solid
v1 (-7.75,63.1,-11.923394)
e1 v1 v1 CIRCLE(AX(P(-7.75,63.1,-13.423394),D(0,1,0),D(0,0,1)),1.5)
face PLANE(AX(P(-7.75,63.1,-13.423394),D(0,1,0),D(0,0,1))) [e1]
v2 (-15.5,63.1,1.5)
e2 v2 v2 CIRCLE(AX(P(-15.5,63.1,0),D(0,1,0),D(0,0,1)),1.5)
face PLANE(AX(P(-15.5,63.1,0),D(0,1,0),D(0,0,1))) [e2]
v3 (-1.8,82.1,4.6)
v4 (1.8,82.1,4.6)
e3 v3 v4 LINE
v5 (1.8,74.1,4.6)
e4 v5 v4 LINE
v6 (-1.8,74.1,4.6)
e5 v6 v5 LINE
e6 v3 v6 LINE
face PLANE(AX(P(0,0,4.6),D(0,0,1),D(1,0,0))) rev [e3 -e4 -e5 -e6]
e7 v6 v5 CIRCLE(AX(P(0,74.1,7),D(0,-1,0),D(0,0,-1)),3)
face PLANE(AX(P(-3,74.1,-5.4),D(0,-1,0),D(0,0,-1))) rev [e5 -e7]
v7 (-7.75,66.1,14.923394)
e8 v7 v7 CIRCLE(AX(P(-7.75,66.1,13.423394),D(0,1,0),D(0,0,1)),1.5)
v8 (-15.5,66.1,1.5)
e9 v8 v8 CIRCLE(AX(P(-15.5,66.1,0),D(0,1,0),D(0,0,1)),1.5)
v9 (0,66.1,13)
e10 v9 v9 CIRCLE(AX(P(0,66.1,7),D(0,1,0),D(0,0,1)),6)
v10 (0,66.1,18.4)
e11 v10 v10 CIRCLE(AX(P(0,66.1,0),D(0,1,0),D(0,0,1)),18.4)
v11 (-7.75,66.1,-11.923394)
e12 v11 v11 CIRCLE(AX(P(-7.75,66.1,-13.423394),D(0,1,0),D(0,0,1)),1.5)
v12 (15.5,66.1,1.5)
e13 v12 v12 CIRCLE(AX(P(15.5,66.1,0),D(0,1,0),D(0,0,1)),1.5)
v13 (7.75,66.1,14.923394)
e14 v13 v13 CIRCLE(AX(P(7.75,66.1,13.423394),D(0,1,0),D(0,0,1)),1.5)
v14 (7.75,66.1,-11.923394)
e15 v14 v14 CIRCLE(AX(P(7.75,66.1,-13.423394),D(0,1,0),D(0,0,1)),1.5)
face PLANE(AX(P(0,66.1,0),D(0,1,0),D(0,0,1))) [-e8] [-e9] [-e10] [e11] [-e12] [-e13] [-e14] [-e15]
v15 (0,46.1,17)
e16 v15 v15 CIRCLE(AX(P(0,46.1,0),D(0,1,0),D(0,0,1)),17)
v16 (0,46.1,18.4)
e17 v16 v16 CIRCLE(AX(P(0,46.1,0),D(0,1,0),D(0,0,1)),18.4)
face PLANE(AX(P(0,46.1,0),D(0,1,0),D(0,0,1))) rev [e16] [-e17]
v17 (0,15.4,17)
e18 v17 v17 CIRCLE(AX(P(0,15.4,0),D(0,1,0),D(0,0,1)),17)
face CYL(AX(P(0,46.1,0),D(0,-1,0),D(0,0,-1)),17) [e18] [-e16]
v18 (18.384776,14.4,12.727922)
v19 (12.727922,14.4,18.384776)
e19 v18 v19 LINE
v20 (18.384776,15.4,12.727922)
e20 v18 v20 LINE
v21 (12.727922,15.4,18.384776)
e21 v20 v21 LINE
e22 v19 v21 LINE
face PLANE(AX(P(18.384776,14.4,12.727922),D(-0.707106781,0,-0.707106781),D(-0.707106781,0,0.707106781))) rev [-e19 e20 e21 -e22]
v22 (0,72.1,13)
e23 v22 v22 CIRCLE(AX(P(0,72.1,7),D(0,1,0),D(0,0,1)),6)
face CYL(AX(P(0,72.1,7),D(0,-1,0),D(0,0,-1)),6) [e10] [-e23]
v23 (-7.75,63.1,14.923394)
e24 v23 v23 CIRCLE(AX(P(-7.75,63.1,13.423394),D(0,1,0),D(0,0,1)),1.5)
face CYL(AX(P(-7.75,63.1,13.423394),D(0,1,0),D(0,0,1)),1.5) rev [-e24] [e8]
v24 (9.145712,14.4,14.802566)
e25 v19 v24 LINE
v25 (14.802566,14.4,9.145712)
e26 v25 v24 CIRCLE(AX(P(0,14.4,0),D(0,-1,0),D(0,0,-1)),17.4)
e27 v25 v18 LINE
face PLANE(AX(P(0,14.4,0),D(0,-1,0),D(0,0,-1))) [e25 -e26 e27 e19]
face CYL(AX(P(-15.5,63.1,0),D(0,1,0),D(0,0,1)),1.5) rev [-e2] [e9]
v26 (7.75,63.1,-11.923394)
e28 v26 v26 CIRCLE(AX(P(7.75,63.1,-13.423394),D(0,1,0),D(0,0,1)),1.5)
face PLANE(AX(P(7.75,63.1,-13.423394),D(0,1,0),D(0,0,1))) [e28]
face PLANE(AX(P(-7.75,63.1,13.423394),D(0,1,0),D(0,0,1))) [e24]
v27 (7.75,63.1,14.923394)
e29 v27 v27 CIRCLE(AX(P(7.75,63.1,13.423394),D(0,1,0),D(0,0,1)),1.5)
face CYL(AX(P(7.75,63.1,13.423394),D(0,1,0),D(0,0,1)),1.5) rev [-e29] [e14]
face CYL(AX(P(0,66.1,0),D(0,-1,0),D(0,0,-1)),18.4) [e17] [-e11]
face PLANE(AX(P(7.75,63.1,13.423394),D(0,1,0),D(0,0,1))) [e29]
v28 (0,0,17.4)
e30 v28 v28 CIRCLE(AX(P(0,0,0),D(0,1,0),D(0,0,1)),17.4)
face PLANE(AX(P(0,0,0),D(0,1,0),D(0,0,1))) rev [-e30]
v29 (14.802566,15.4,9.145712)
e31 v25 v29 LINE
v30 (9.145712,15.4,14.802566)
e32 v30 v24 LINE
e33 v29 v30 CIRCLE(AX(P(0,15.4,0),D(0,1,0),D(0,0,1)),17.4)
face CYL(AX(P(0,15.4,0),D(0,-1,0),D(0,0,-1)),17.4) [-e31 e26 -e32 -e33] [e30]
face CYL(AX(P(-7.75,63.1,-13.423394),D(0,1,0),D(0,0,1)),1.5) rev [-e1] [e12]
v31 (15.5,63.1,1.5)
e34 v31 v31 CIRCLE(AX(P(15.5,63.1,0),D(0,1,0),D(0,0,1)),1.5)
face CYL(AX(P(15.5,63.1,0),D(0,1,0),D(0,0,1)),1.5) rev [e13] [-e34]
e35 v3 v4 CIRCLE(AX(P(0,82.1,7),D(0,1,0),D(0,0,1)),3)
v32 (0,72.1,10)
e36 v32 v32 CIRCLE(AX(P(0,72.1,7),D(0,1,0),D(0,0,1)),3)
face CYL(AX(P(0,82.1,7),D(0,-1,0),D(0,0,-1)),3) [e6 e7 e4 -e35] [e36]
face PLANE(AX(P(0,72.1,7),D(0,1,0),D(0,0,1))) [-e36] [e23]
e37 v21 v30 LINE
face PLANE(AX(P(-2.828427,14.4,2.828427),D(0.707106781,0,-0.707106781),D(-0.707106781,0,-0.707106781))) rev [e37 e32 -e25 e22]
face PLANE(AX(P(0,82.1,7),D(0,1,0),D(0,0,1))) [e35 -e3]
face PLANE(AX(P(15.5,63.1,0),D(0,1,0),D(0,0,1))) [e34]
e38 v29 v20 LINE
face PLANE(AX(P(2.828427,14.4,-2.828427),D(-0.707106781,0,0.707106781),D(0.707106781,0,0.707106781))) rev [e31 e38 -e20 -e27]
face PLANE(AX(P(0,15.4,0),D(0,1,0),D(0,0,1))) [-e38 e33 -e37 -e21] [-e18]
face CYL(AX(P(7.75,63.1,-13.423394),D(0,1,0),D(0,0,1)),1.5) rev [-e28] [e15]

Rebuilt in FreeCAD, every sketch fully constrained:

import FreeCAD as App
import Part
import Sketcher
from FreeCAD import Vector
Q = App.Units.Quantity


def add_polygon(sketch, points):
    """Adds a closed chain of lines whose ends are joined by coincident constraints."""
    first, n = sketch.GeometryCount, len(points)
    for a, b in zip(points, points[1:] + points[:1]):
        sketch.addGeometry(Part.LineSegment(App.Vector(*a, 0), App.Vector(*b, 0)), False)
    for i in range(n):
        sketch.addConstraint(Sketcher.Constraint("Coincident", first + i, 2, first + (i + 1) % n, 1))

doc = App.newDocument("Part")
body = doc.addObject("PartDesign::Body", "Body")

# Sketch on XZ plane
sketch1 = doc.addObject("Sketcher::SketchObject", "Sketch")
body.addObject(sketch1)
sketch1.AttachmentSupport = (doc.XZ_Plane, [""])
sketch1.MapMode = "FlatFace"
sketch1.addGeometry(Part.Circle(Vector(0, 0, 0), Vector(0, 0, 1), 17), False)
sketch1.addConstraint([
    Sketcher.Constraint("Coincident", 0, 3, -1, 1),
    Sketcher.Constraint("Diameter", 0, 34.8),
])
pad1 = doc.addObject("PartDesign::Pad", "Pad")
body.addObject(pad1)
pad1.Profile = sketch1
pad1.Length = 15.4
pad1.Reversed = True

# Sketch on XZ plane
sketch2 = doc.addObject("Sketcher::SketchObject", "Sketch001")
body.addObject(sketch2)
sketch2.AttachmentSupport = (doc.XZ_Plane, [""])
sketch2.MapMode = "FlatFace"
sketch2.AttachmentOffset = App.Placement(Vector(0, 0, -15.4), App.Rotation())
sketch2.addGeometry(Part.Circle(Vector(0, 0, 0), Vector(0, 0, 1), 17), False)
sketch2.addConstraint([
    Sketcher.Constraint("Coincident", 0, 3, -1, 1),
    Sketcher.Constraint("Diameter", 0, 34.0),
])
pad2 = doc.addObject("PartDesign::Pad", "Pad001")
body.addObject(pad2)
pad2.Profile = sketch2
pad2.Length = 30.7
pad2.Reversed = True

# Sketch on XZ plane
sketch3 = doc.addObject("Sketcher::SketchObject", "Sketch002")
body.addObject(sketch3)
sketch3.AttachmentSupport = (doc.XZ_Plane, [""])
sketch3.MapMode = "FlatFace"
sketch3.AttachmentOffset = App.Placement(Vector(0, 0, -46.1), App.Rotation())
sketch3.addGeometry(Part.Circle(Vector(0, 0, 0), Vector(0, 0, 1), 18), False)
sketch3.addConstraint([
    Sketcher.Constraint("Coincident", 0, 3, -1, 1),
    Sketcher.Constraint("Diameter", 0, 36.8),
])
pad3 = doc.addObject("PartDesign::Pad", "Pad002")
body.addObject(pad3)
pad3.Profile = sketch3
pad3.Length = 20
pad3.Reversed = True

# Sketch on XZ plane
sketch4 = doc.addObject("Sketcher::SketchObject", "Sketch003")
body.addObject(sketch4)
sketch4.AttachmentSupport = (doc.XZ_Plane, [""])
sketch4.MapMode = "FlatFace"
sketch4.AttachmentOffset = App.Placement(Vector(0, 0, -66.1), App.Rotation())
sketch4.addGeometry(Part.Circle(Vector(0, 7, 0), Vector(0, 0, 1), 6), False)
sketch4.addConstraint([
    Sketcher.Constraint("PointOnObject", 0, 3, -2),
    Sketcher.Constraint("Diameter", 0, 12.0),
    Sketcher.Constraint("DistanceY", -1, 1, 0, 3, 7.0),
])
pad4 = doc.addObject("PartDesign::Pad", "Pad003")
body.addObject(pad4)
pad4.Profile = sketch4
pad4.Length = 6
pad4.Reversed = True

# Sketch on XZ plane
sketch5 = doc.addObject("Sketcher::SketchObject", "Sketch004")
body.addObject(sketch5)
sketch5.AttachmentSupport = (doc.XZ_Plane, [""])
sketch5.MapMode = "FlatFace"
sketch5.AttachmentOffset = App.Placement(Vector(0, 0, -72.1), App.Rotation())
sketch5.addGeometry(Part.Circle(Vector(0, 7, 0), Vector(0, 0, 1), 3), False)
sketch5.addConstraint([
    Sketcher.Constraint("PointOnObject", 0, 3, -2),
    Sketcher.Constraint("Diameter", 0, 6.0),
    Sketcher.Constraint("DistanceY", -1, 1, 0, 3, 7.0),
])
pad5 = doc.addObject("PartDesign::Pad", "Pad004")
body.addObject(pad5)
pad5.Profile = sketch5
pad5.Length = 10
pad5.Reversed = True

# Sketch on XY plane
sketch6 = doc.addObject("Sketcher::SketchObject", "Sketch005")
body.addObject(sketch6)
sketch6.AttachmentSupport = (doc.XY_Plane, [""])
sketch6.MapMode = "FlatFace"
sketch6.AttachmentOffset = App.Placement(Vector(0, 0, 4.6), App.Rotation())
add_polygon(sketch6, [(-3, 82), (-3, 74), (3, 74), (3, 82)])  # lines 0-3
sketch6.addConstraint([
    Sketcher.Constraint("Vertical", 0),
    Sketcher.Constraint("Horizontal", 1),
    Sketcher.Constraint("Vertical", 2),
    Sketcher.Constraint("Horizontal", 3),
    Sketcher.Constraint("DistanceX", 1, 1, 1, 2, 6.0),
    Sketcher.Constraint("DistanceY", 0, 2, 0, 1, 8.0),
    Sketcher.Constraint("DistanceX", 0, 2, -1, 1, 3.0),
    Sketcher.Constraint("DistanceY", -1, 1, 0, 2, 74.1),
])
pocket1 = doc.addObject("PartDesign::Pocket", "Pocket")
body.addObject(pocket1)
pocket1.Profile = sketch6
pocket1.Length = 10

# Sketch on XZ plane
sketch7 = doc.addObject("Sketcher::SketchObject", "Sketch006")
body.addObject(sketch7)
sketch7.AttachmentSupport = (doc.XZ_Plane, [""])
sketch7.MapMode = "FlatFace"
sketch7.AttachmentOffset = App.Placement(Vector(0, 0, -15.4), App.Rotation())
add_polygon(sketch7, [(-3, 3), (3, -3), (18, 13), (13, 18)])  # lines 0-3
sketch7.addConstraint([
    Sketcher.Constraint("Symmetric", 0, 2, 3, 2, -1, 1),
    Sketcher.Constraint("Perpendicular", 0, 1),
    Sketcher.Constraint("Perpendicular", 1, 2),
    Sketcher.Constraint("Perpendicular", 2, 3),
    Sketcher.Constraint("Angle", 0, Q("-45 deg")),
    Sketcher.Constraint("Distance", 0, 8.0),
    Sketcher.Constraint("Distance", 1, 22.0),
])
pad6 = doc.addObject("PartDesign::Pad", "Pad005")
body.addObject(pad6)
pad6.Profile = sketch7
pad6.Length = 1

# Sketch on XZ plane
sketch8 = doc.addObject("Sketcher::SketchObject", "Sketch007")
body.addObject(sketch8)
sketch8.AttachmentSupport = (doc.XZ_Plane, [""])
sketch8.MapMode = "FlatFace"
sketch8.AttachmentOffset = App.Placement(Vector(0, 0, -66.1), App.Rotation())
sketch8.addGeometry([
    Part.Circle(Vector(-7.8, -13.4, 0), Vector(0, 0, 1), 1.5),  # 0
    Part.Circle(Vector(7.8, -13.4, 0), Vector(0, 0, 1), 1.5),  # 1
    Part.Circle(Vector(-15.5, 0, 0), Vector(0, 0, 1), 1.5),  # 2
    Part.Circle(Vector(15.5, 0, 0), Vector(0, 0, 1), 1.5),  # 3
    Part.Circle(Vector(7.8, 13.4, 0), Vector(0, 0, 1), 1.5),  # 4
    Part.Circle(Vector(-7.8, 13.4, 0), Vector(0, 0, 1), 1.5),  # 5
], False)
sketch8.addConstraint([
    Sketcher.Constraint("Equal", 0, 1),
    Sketcher.Constraint("Equal", 1, 2),
    Sketcher.Constraint("Equal", 2, 3),
    Sketcher.Constraint("Equal", 3, 4),
    Sketcher.Constraint("Equal", 4, 5),
    Sketcher.Constraint("Symmetric", 2, 3, 3, 3, -1, 1),
    Sketcher.Constraint("Symmetric", 0, 3, 4, 3, -1, 1),
    Sketcher.Constraint("Symmetric", 1, 3, 5, 3, -1, 1),
    Sketcher.Constraint("Symmetric", 0, 3, 1, 3, -2),
    Sketcher.Constraint("PointOnObject", 2, 3, -1),
    Sketcher.Constraint("Diameter", 0, 3.0),
    Sketcher.Constraint("DistanceX", 2, 3, 3, 3, 31.0),
    Sketcher.Constraint("DistanceX", 0, 3, 1, 3, 15.5),
    Sketcher.Constraint("DistanceY", 0, 3, -1, 1, 13.423394),
])
pocket2 = doc.addObject("PartDesign::Pocket", "Pocket001")
body.addObject(pocket2)
pocket2.Profile = sketch8
pocket2.Length = 3
pocket2.Reversed = True

doc.recompute()
